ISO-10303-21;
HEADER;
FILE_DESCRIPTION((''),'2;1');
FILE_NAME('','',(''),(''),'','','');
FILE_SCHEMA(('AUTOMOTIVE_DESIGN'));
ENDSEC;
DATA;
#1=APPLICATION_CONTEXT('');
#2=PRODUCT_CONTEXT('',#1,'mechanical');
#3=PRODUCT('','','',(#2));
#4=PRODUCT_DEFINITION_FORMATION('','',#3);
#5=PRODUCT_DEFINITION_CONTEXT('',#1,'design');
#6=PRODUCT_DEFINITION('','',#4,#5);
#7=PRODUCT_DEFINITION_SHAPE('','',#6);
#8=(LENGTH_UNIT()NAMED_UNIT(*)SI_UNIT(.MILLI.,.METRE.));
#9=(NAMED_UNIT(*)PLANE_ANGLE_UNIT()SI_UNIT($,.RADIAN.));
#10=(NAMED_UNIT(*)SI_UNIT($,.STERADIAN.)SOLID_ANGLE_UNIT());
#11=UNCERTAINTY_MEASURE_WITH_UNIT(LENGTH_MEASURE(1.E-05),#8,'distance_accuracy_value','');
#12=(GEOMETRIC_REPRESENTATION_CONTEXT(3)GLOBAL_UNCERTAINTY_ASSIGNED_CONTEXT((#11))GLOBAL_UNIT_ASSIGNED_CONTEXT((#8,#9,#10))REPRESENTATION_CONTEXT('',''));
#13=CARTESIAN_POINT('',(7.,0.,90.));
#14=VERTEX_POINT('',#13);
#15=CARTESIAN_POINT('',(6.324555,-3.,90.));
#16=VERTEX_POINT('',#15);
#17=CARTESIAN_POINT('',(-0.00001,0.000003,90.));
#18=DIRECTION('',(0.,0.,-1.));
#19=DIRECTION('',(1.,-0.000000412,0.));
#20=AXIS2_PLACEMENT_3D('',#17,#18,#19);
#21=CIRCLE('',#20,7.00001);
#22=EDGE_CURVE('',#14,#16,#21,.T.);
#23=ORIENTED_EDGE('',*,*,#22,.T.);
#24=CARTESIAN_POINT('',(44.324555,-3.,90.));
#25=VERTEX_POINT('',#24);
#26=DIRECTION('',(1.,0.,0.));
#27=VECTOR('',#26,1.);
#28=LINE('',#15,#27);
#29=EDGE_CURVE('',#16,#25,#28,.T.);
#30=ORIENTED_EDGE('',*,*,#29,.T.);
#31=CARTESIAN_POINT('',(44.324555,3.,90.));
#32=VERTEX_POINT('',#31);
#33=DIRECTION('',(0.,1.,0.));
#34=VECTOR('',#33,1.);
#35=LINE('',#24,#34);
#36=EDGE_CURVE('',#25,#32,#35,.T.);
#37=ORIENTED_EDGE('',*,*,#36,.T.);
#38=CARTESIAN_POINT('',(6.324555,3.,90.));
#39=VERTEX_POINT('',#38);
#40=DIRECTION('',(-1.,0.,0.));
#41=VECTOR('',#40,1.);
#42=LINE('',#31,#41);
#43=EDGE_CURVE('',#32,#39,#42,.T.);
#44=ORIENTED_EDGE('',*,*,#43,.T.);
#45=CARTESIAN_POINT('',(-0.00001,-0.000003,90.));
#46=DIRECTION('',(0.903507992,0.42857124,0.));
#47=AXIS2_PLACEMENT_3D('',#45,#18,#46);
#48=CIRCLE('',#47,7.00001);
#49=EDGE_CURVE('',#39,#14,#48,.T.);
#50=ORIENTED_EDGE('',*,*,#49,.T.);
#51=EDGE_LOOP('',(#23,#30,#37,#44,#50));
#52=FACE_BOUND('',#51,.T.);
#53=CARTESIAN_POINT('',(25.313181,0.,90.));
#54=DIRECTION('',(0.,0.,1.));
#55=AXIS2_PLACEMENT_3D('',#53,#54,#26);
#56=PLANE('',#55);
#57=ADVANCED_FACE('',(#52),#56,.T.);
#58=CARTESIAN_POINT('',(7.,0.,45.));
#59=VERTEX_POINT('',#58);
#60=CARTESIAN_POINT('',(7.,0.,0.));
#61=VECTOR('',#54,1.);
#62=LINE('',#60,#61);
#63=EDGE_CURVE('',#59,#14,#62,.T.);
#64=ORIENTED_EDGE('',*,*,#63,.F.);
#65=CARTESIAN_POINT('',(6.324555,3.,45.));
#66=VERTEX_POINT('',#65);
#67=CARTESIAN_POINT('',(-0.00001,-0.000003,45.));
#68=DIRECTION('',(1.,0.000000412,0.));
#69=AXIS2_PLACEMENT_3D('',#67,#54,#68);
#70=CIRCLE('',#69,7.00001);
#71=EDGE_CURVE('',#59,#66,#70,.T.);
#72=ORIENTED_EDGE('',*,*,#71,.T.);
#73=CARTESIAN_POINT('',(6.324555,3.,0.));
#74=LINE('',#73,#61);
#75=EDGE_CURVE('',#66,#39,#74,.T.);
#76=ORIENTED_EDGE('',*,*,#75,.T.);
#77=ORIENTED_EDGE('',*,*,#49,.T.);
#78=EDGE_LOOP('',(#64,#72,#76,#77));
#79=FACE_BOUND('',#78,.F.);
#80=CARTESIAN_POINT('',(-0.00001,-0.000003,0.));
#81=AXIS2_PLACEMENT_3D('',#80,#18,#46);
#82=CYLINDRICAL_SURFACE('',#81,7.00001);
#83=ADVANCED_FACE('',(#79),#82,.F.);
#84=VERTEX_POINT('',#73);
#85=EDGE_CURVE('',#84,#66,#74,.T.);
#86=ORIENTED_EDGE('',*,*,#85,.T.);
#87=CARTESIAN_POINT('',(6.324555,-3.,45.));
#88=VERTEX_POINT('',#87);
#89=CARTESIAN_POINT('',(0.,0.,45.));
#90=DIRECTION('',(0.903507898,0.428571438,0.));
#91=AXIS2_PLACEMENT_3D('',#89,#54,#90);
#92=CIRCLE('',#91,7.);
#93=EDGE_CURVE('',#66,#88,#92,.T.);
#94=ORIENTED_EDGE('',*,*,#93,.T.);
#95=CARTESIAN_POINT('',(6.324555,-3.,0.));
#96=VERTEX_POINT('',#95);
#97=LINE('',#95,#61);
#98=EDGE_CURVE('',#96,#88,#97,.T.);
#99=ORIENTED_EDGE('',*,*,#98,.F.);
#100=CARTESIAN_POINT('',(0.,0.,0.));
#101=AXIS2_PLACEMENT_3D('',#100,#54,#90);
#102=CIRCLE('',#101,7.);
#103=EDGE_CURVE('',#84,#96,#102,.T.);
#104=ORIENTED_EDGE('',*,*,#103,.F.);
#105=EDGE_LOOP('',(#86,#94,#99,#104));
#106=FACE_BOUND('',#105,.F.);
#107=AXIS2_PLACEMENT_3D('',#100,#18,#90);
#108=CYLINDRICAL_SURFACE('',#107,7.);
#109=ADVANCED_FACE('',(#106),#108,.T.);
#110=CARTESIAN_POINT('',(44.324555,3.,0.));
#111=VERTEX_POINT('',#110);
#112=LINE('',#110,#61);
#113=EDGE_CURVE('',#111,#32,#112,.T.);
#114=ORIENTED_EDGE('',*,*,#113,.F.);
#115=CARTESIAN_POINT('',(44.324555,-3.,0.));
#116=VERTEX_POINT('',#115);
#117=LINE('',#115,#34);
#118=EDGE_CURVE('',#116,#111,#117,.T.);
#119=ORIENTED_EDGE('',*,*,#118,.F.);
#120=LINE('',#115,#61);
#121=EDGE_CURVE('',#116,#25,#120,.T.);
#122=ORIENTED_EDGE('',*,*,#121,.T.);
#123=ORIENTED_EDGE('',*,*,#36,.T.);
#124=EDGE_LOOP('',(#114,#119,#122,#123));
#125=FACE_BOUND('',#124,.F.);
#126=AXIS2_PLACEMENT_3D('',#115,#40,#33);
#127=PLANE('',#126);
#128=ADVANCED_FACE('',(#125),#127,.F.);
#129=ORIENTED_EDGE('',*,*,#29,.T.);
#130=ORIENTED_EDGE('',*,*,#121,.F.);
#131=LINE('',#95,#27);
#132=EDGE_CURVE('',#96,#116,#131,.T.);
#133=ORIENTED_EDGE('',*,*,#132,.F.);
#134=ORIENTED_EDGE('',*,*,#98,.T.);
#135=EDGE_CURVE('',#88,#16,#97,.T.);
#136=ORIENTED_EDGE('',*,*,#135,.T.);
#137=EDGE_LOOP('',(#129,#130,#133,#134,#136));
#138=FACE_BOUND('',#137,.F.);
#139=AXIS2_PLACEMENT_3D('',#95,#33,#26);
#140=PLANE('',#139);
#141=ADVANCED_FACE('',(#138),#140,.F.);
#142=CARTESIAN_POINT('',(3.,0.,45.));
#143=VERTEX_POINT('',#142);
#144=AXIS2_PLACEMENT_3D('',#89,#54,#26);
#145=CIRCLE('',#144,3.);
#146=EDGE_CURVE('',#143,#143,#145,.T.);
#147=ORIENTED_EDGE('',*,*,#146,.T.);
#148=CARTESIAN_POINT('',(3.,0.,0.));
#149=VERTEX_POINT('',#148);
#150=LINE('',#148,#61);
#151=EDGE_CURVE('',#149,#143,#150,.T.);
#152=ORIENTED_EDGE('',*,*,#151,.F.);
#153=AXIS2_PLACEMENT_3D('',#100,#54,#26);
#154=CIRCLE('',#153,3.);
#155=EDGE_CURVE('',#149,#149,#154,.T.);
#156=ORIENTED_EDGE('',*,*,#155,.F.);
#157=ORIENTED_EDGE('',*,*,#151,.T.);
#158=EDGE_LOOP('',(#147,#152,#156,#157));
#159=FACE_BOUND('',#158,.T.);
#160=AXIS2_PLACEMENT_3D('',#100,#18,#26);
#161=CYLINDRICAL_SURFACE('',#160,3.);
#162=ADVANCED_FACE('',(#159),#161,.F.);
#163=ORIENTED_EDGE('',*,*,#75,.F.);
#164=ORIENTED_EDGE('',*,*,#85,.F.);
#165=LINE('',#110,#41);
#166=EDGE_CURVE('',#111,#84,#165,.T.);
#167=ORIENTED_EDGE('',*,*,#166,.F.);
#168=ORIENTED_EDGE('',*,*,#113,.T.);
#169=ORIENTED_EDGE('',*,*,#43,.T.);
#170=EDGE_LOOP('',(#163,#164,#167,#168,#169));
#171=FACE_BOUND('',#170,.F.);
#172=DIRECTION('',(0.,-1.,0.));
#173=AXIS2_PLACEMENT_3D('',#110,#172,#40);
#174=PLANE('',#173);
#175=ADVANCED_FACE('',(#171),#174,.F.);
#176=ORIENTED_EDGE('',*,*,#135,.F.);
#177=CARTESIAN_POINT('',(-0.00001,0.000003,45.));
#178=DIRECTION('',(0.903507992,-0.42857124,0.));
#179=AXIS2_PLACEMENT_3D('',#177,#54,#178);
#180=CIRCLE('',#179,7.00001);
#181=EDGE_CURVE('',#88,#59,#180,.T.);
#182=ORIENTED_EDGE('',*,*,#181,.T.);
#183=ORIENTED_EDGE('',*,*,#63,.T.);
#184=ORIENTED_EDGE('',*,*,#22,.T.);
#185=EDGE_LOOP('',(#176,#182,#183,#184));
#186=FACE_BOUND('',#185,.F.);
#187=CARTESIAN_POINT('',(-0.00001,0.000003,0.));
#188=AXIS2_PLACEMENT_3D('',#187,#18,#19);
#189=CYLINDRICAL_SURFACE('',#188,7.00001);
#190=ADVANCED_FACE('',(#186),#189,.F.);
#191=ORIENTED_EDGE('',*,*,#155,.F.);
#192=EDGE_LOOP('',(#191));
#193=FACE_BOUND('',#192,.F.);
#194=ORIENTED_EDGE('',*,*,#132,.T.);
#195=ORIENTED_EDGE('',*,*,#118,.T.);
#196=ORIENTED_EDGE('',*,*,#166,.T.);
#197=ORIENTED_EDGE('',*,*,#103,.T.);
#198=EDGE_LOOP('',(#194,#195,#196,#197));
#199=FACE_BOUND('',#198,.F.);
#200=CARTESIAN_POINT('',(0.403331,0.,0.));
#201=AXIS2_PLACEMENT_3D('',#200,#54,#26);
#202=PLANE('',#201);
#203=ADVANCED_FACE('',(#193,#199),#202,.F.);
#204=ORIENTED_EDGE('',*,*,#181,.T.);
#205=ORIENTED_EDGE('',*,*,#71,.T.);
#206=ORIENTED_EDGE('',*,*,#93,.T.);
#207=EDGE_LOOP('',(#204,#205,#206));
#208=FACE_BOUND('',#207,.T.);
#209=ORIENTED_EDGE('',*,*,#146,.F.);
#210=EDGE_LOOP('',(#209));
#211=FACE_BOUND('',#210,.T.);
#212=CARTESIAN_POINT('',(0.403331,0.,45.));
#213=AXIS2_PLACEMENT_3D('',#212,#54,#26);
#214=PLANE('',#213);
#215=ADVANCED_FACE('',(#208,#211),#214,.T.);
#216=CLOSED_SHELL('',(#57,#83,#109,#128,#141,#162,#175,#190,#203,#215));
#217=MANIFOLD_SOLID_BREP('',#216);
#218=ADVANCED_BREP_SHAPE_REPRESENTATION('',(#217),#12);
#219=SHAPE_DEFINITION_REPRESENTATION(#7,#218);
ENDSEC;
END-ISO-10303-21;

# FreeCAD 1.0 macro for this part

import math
import FreeCAD as App
import Part
import Sketcher

V = App.Vector

doc = App.newDocument("Part")
body = doc.addObject("PartDesign::Body", "Body")

# Sketch on XY plane
sketch1 = body.newObject("Sketcher::SketchObject", "Sketch")
sketch1.AttachmentSupport = (doc.getObject("XY_Plane"), [""])
sketch1.MapMode = "FlatFace"
sketch1.addGeometry(Part.ArcOfCircle(Part.Circle(V(0, 0, 0), V(0, 0, 1), 7), math.radians(0), math.radians(25)), False)
sketch1.addGeometry(Part.ArcOfCircle(Part.Circle(V(0, 0, 0), V(0, 0, 1), 7), math.radians(-25), math.radians(0)), False)
sketch1.addGeometry(Part.LineSegment(V(6.3, -3, 0), V(44.3, -3, 0)), False)
sketch1.addGeometry(Part.LineSegment(V(44.3, -3, 0), V(44.3, 3, 0)), False)
sketch1.addGeometry(Part.LineSegment(V(44.3, 3, 0), V(6.3, 3, 0)), False)
sketch1.addConstraint(Sketcher.Constraint("Tangent", 0, 1, 1, 2))
sketch1.addConstraint(Sketcher.Constraint("Coincident", 1, 1, 2, 1))
sketch1.addConstraint(Sketcher.Constraint("Coincident", 2, 2, 3, 1))
sketch1.addConstraint(Sketcher.Constraint("Coincident", 3, 2, 4, 1))
sketch1.addConstraint(Sketcher.Constraint("Coincident", 4, 2, 0, 2))
sketch1.addConstraint(Sketcher.Constraint("Horizontal", 2))
sketch1.addConstraint(Sketcher.Constraint("Vertical", 3))
sketch1.addConstraint(Sketcher.Constraint("Horizontal", 4))
sketch1.addConstraint(Sketcher.Constraint("Equal", 0, 1))
sketch1.addConstraint(Sketcher.Constraint("Symmetric", 1, 1, 4, 2, -1))
sketch1.addConstraint(Sketcher.Constraint("PointOnObject", 0, 1, -1))
sketch1.addConstraint(Sketcher.Constraint("DistanceX", 2, 1, 2, 2, 38.0))
sketch1.addConstraint(Sketcher.Constraint("DistanceY", 3, 1, 3, 2, 6.0))
sketch1.addConstraint(Sketcher.Constraint("DistanceX", -1, 1, 0, 1, 7.0))
sketch1.addConstraint(Sketcher.Constraint("Radius", 0, 7.00001))
pad1 = body.newObject("PartDesign::Pad", "Pad")
pad1.Profile = sketch1
pad1.Length = 90

# Sketch on XY plane
sketch2 = body.newObject("Sketcher::SketchObject", "Sketch001")
sketch2.AttachmentSupport = (doc.getObject("XY_Plane"), [""])
sketch2.MapMode = "FlatFace"
sketch2.addGeometry(Part.ArcOfCircle(Part.Circle(V(0, 0, 0), V(0, 0, 1), 7), math.radians(-25), math.radians(0)), False)
sketch2.addGeometry(Part.ArcOfCircle(Part.Circle(V(0, 0, 0), V(0, 0, 1), 7), math.radians(0), math.radians(25)), False)
sketch2.addGeometry(Part.ArcOfCircle(Part.Circle(V(0, 0, 0), V(0, 0, 1), 7), math.radians(25), math.radians(335)), False)
sketch2.addGeometry(Part.Circle(V(0, 0, 0), V(0, 0, 1), 3), False)
sketch2.addConstraint(Sketcher.Constraint("Tangent", 0, 2, 1, 1))
sketch2.addConstraint(Sketcher.Constraint("Tangent", 1, 2, 2, 1))
sketch2.addConstraint(Sketcher.Constraint("Tangent", 2, 2, 0, 1))
sketch2.addConstraint(Sketcher.Constraint("Coincident", 2, 3, -1, 1))
sketch2.addConstraint(Sketcher.Constraint("Coincident", 3, 3, -1, 1))
sketch2.addConstraint(Sketcher.Constraint("PointOnObject", 0, 2, -1))
sketch2.addConstraint(Sketcher.Constraint("Vertical", 1, 2, 2, 2))
sketch2.addConstraint(Sketcher.Constraint("Diameter", 3, 6.0))
sketch2.addConstraint(Sketcher.Constraint("Radius", 2, 7.0))
sketch2.addConstraint(Sketcher.Constraint("DistanceY", -1, 1, 1, 2, 3.0))
pad2 = body.newObject("PartDesign::Pad", "Pad001")
pad2.Profile = sketch2
pad2.Length = 45

doc.recompute()
